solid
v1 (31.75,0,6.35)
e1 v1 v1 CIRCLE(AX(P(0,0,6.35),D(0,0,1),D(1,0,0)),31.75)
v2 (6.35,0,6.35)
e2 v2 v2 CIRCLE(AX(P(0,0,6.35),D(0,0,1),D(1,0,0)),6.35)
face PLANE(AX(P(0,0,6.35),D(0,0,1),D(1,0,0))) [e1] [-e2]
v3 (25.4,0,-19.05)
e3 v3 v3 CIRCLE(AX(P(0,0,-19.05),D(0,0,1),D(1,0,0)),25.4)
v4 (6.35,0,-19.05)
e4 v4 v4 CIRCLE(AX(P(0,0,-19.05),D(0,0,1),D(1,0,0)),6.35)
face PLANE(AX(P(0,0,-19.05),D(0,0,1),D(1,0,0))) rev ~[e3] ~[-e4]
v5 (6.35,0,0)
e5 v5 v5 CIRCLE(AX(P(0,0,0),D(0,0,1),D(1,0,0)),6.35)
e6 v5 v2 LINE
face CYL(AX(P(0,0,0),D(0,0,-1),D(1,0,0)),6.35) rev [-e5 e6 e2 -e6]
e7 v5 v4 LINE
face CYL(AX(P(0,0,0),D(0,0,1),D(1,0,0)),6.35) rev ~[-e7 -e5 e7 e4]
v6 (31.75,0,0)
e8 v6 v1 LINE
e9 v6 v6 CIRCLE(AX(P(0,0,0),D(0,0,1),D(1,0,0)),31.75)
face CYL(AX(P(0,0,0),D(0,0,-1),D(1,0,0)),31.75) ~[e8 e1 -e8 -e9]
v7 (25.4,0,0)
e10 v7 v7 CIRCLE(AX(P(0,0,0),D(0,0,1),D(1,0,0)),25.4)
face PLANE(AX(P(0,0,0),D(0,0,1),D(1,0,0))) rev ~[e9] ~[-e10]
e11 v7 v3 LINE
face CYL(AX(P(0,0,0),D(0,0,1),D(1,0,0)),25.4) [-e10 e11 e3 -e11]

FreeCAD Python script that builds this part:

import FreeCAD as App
import Part
import Sketcher

V = App.Vector
Q = App.Units.Quantity

doc = App.newDocument("Part")
params = doc.addObject("Spreadsheet::Sheet", "Params")
for row, (alias, value) in enumerate([
    ("sketch1_diameter", "2 in"),
    ("sketch1_diameter2", "2.5 in"),
    ("pad1_length", "0.25 in"),
    ("sketch2_diameter", "2 in"),
    ("sketch2_diameter2", "0.5 in"),
    ("pad2_length", "0.25 in"),
    ("sketch3_diameter", "2 in"),
    ("sketch3_diameter2", "0.5 in"),
    ("pad3_length", "0.75 in"),
], start=1):
    params.set(f"A{row}", alias)
    params.set(f"B{row}", "=" + value)
    params.setAlias(f"B{row}", alias)

body = doc.addObject("PartDesign::Body", "Body")

# Sketch on XY plane
sketch1 = body.newObject("Sketcher::SketchObject", "Sketch")
sketch1.AttachmentSupport = (doc.getObject("XY_Plane"), [""])
sketch1.MapMode = "FlatFace"
sketch1.addGeometry(Part.Circle(V(0, 0, 0), V(0, 0, 1), 32), False)
sketch1.addGeometry(Part.Circle(V(0, 0, 0), V(0, 0, 1), 25), False)
sketch1.addConstraint(Sketcher.Constraint("Coincident", 0, 3, -1, 1))
sketch1.addConstraint(Sketcher.Constraint("Coincident", 1, 3, -1, 1))
sketch1.addConstraint(Sketcher.Constraint("Diameter", 1, Q("2 in")))
sketch1.addConstraint(Sketcher.Constraint("Diameter", 0, Q("2.5 in")))
sketch1.setExpression("Constraints[2]", "Params.sketch1_diameter")
sketch1.setExpression("Constraints[3]", "Params.sketch1_diameter2")
pad1 = body.newObject("PartDesign::Pad", "Pad")
pad1.Profile = sketch1
pad1.setExpression("Length", "Params.pad1_length")

# Sketch on XY plane
sketch2 = body.newObject("Sketcher::SketchObject", "Sketch001")
sketch2.AttachmentSupport = (doc.getObject("XY_Plane"), [""])
sketch2.MapMode = "FlatFace"
sketch2.addGeometry(Part.Circle(V(0, 0, 0), V(0, 0, 1), 25), False)
sketch2.addGeometry(Part.Circle(V(0, 0, 0), V(0, 0, 1), 6), False)
sketch2.addConstraint(Sketcher.Constraint("Coincident", 0, 3, -1, 1))
sketch2.addConstraint(Sketcher.Constraint("Coincident", 1, 3, -1, 1))
sketch2.addConstraint(Sketcher.Constraint("Diameter", 0, Q("2 in")))
sketch2.addConstraint(Sketcher.Constraint("Diameter", 1, Q("0.5 in")))
sketch2.setExpression("Constraints[2]", "Params.sketch2_diameter")
sketch2.setExpression("Constraints[3]", "Params.sketch2_diameter2")
pad2 = body.newObject("PartDesign::Pad", "Pad001")
pad2.Profile = sketch2
pad2.setExpression("Length", "Params.pad2_length")

# Sketch on XY plane
sketch3 = body.newObject("Sketcher::SketchObject", "Sketch002")
sketch3.AttachmentSupport = (doc.getObject("XY_Plane"), [""])
sketch3.MapMode = "FlatFace"
sketch3.addGeometry(Part.Circle(V(0, 0, 0), V(0, 0, 1), 25), False)
sketch3.addGeometry(Part.Circle(V(0, 0, 0), V(0, 0, 1), 6), False)
sketch3.addConstraint(Sketcher.Constraint("Coincident", 0, 3, -1, 1))
sketch3.addConstraint(Sketcher.Constraint("Coincident", 1, 3, -1, 1))
sketch3.addConstraint(Sketcher.Constraint("Diameter", 0, Q("2 in")))
sketch3.addConstraint(Sketcher.Constraint("Diameter", 1, Q("0.5 in")))
sketch3.setExpression("Constraints[2]", "Params.sketch3_diameter")
sketch3.setExpression("Constraints[3]", "Params.sketch3_diameter2")
pad3 = body.newObject("PartDesign::Pad", "Pad002")
pad3.Profile = sketch3
pad3.setExpression("Length", "Params.pad3_length")
pad3.Reversed = True

doc.recompute()
